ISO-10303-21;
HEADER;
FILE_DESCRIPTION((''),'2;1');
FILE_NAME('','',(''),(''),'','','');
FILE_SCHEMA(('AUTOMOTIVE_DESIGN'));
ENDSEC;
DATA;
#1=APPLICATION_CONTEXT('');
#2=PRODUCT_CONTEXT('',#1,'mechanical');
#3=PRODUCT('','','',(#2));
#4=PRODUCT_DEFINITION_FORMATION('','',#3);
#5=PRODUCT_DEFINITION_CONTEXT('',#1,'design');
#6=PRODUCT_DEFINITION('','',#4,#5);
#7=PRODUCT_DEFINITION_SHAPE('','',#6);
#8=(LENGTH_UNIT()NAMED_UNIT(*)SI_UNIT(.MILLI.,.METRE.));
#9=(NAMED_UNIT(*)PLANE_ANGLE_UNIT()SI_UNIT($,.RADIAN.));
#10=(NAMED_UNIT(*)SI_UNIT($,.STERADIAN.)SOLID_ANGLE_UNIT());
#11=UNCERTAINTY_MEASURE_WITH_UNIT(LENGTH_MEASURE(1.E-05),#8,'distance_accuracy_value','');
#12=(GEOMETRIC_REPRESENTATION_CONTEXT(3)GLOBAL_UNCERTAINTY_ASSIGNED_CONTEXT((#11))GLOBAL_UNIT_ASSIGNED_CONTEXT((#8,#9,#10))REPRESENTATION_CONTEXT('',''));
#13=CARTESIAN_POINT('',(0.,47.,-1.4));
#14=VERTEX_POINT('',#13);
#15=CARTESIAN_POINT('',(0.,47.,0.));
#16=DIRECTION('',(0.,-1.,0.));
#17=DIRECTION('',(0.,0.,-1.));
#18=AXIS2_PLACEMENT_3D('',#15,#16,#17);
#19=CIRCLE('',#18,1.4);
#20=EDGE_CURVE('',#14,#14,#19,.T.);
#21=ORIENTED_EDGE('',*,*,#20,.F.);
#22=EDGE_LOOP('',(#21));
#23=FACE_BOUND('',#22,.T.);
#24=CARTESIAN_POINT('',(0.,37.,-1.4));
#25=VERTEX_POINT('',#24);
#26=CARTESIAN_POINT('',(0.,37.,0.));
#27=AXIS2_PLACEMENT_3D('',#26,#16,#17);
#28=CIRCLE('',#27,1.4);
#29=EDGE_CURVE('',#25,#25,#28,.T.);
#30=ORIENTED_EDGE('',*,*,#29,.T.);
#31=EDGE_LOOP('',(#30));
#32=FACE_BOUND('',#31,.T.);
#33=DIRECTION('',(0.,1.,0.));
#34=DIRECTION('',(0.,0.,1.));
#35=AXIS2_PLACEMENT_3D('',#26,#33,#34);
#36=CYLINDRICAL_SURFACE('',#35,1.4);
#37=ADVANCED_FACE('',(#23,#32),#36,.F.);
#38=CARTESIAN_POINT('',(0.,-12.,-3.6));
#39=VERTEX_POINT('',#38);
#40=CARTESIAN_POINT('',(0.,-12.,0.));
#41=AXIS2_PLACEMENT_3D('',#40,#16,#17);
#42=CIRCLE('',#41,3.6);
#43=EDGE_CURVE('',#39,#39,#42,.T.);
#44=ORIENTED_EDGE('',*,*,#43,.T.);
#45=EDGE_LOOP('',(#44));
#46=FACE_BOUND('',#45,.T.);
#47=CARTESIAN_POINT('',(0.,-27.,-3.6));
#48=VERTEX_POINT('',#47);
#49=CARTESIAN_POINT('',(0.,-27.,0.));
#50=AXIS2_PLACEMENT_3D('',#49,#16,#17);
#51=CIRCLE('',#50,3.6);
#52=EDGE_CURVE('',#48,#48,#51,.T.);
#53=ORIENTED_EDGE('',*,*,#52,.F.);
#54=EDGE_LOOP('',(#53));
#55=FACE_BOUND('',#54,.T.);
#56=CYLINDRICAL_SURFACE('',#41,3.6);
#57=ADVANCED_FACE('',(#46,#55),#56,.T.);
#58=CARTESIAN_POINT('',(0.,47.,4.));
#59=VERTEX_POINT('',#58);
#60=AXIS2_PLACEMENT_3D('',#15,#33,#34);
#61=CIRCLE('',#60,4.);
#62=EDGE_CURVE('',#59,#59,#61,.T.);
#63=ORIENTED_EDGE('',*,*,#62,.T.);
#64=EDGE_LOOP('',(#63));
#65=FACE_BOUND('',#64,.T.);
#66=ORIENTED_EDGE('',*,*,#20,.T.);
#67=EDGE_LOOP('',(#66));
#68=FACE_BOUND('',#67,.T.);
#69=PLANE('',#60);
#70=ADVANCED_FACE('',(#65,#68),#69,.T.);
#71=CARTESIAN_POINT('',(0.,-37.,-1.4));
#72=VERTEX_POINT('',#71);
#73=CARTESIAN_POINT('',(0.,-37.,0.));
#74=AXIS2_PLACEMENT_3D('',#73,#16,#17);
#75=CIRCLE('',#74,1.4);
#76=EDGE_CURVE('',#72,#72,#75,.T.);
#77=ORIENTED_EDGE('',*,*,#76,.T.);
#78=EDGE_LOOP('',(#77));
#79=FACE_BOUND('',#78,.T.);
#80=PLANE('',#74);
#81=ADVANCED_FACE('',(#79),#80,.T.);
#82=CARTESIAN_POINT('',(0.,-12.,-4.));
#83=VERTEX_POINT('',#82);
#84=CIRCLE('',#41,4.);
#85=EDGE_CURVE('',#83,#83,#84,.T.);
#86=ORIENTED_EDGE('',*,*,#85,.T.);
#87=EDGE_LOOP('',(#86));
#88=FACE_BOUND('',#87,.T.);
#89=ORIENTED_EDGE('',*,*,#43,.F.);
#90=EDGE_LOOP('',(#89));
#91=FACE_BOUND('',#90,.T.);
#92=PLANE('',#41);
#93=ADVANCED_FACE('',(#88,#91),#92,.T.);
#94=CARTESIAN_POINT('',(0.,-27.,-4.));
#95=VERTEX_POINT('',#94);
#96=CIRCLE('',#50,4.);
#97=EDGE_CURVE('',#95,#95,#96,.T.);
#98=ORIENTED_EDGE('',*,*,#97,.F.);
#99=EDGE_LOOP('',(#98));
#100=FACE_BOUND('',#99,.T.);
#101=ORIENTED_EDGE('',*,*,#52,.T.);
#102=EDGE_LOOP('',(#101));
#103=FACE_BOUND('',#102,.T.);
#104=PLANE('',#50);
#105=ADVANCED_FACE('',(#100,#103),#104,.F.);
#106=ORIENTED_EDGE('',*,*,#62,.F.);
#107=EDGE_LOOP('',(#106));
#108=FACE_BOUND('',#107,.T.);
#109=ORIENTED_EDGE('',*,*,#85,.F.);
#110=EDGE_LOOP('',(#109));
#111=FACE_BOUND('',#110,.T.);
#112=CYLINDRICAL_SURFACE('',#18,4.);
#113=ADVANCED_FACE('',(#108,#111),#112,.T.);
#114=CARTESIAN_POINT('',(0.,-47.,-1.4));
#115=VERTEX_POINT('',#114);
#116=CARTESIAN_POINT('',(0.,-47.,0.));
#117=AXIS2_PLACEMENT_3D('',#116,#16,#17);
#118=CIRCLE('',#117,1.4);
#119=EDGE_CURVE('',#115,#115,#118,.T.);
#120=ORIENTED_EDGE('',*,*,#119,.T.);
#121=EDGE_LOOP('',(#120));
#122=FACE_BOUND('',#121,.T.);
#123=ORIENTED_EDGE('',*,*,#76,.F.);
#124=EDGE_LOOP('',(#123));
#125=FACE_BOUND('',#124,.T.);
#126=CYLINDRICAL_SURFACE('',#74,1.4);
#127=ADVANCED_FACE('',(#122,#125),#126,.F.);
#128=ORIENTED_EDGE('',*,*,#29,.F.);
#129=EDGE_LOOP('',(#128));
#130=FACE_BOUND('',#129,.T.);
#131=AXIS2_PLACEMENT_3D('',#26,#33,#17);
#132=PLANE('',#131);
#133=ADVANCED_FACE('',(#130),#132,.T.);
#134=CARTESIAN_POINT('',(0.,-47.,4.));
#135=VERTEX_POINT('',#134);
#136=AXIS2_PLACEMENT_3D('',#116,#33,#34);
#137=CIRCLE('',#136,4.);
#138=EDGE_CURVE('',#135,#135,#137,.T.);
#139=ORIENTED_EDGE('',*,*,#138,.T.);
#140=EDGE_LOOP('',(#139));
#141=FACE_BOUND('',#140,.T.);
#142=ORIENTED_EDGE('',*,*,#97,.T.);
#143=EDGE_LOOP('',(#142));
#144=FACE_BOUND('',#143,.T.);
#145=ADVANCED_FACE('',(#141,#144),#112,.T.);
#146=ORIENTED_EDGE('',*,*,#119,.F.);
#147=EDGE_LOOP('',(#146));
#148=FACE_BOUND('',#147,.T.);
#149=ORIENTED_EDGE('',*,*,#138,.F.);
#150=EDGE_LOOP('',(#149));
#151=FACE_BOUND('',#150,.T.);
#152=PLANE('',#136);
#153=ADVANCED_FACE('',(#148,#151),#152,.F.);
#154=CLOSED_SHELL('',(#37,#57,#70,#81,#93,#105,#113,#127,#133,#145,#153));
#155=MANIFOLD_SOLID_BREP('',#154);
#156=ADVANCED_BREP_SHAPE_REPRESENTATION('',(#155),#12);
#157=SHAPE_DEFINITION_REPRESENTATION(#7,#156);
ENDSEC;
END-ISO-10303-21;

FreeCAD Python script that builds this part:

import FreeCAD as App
import Part
import Sketcher
from FreeCAD import Vector
Q = App.Units.Quantity

doc = App.newDocument("Part")
params = doc.addObject("Spreadsheet::Sheet", "Params")
for row, (alias, value) in enumerate([
    ("sketch1_diameter", "8 mm"),
    ("pad1_length", "94 mm"),
    ("sketch2_diameter", "2.8 mm"),
    ("pocket1_length", "10 mm"),
    ("sketch3_diameter", "8 mm"),
    ("sketch3_diameter2", "7.2 mm"),
    ("pocket2_length", "15 mm"),
], start=1):
    params.set(f"A{row}", alias)
    params.set(f"B{row}", "=" + value)
    params.setAlias(f"B{row}", alias)

body = doc.addObject("PartDesign::Body", "Body")

# Sketch on XZ plane
sketch1 = doc.addObject("Sketcher::SketchObject", "Sketch")
body.addObject(sketch1)
sketch1.AttachmentSupport = (doc.XZ_Plane, [""])
sketch1.MapMode = "FlatFace"
sketch1.addGeometry(Part.Circle(Vector(0, 0, 0), Vector(0, 0, 1), 4), False)
sketch1.addConstraint([
    Sketcher.Constraint("Coincident", 0, 3, -1, 1),
    Sketcher.Constraint("Diameter", 0, Q("8 mm")),
])
sketch1.setExpression("Constraints[1]", "Params.sketch1_diameter")
pad1 = doc.addObject("PartDesign::Pad", "Pad")
body.addObject(pad1)
pad1.Profile = sketch1
pad1.setExpression("Length", "Params.pad1_length")
pad1.Midplane = True

# Sketch on XZ plane
sketch2 = doc.addObject("Sketcher::SketchObject", "Sketch001")
body.addObject(sketch2)
sketch2.AttachmentSupport = (doc.XZ_Plane, [""])
sketch2.MapMode = "FlatFace"
sketch2.AttachmentOffset = App.Placement(Vector(0, 0, 47), App.Rotation())
sketch2.addGeometry(Part.Circle(Vector(0, 0, 0), Vector(0, 0, 1), 1.4), False)
sketch2.addConstraint([
    Sketcher.Constraint("Coincident", 0, 3, -1, 1),
    Sketcher.Constraint("Diameter", 0, Q("2.8 mm")),
])
sketch2.setExpression("Constraints[1]", "Params.sketch2_diameter")
pocket1 = doc.addObject("PartDesign::Pocket", "Pocket")
body.addObject(pocket1)
pocket1.Profile = sketch2
pocket1.setExpression("Length", "Params.pocket1_length")
doc.recompute()

mirrored = doc.addObject("PartDesign::Mirrored", "Mirrored")
body.addObject(mirrored)
mirrored.Originals = [pocket1]
mirrored.MirrorPlane = (doc.XZ_Plane, [""])
body.Tip = mirrored

# Sketch on XZ plane
sketch3 = doc.addObject("Sketcher::SketchObject", "Sketch002")
body.addObject(sketch3)
sketch3.AttachmentSupport = (doc.XZ_Plane, [""])
sketch3.MapMode = "FlatFace"
sketch3.AttachmentOffset = App.Placement(Vector(0, 0, 12), App.Rotation())
sketch3.addGeometry([
    Part.Circle(Vector(0, 0, 0), Vector(0, 0, 1), 4),
    Part.Circle(Vector(0, 0, 0), Vector(0, 0, 1), 3.6),
], False)
sketch3.addConstraint([
    Sketcher.Constraint("Coincident", 0, 3, -1, 1),
    Sketcher.Constraint("Coincident", 1, 3, -1, 1),
    Sketcher.Constraint("Diameter", 0, Q("8 mm")),
    Sketcher.Constraint("Diameter", 1, Q("7.2 mm")),
])
sketch3.setExpression("Constraints[2]", "Params.sketch3_diameter")
sketch3.setExpression("Constraints[3]", "Params.sketch3_diameter2")
pocket2 = doc.addObject("PartDesign::Pocket", "Pocket001")
body.addObject(pocket2)
pocket2.Profile = sketch3
pocket2.setExpression("Length", "Params.pocket2_length")
pocket2.Reversed = True

doc.recompute()
